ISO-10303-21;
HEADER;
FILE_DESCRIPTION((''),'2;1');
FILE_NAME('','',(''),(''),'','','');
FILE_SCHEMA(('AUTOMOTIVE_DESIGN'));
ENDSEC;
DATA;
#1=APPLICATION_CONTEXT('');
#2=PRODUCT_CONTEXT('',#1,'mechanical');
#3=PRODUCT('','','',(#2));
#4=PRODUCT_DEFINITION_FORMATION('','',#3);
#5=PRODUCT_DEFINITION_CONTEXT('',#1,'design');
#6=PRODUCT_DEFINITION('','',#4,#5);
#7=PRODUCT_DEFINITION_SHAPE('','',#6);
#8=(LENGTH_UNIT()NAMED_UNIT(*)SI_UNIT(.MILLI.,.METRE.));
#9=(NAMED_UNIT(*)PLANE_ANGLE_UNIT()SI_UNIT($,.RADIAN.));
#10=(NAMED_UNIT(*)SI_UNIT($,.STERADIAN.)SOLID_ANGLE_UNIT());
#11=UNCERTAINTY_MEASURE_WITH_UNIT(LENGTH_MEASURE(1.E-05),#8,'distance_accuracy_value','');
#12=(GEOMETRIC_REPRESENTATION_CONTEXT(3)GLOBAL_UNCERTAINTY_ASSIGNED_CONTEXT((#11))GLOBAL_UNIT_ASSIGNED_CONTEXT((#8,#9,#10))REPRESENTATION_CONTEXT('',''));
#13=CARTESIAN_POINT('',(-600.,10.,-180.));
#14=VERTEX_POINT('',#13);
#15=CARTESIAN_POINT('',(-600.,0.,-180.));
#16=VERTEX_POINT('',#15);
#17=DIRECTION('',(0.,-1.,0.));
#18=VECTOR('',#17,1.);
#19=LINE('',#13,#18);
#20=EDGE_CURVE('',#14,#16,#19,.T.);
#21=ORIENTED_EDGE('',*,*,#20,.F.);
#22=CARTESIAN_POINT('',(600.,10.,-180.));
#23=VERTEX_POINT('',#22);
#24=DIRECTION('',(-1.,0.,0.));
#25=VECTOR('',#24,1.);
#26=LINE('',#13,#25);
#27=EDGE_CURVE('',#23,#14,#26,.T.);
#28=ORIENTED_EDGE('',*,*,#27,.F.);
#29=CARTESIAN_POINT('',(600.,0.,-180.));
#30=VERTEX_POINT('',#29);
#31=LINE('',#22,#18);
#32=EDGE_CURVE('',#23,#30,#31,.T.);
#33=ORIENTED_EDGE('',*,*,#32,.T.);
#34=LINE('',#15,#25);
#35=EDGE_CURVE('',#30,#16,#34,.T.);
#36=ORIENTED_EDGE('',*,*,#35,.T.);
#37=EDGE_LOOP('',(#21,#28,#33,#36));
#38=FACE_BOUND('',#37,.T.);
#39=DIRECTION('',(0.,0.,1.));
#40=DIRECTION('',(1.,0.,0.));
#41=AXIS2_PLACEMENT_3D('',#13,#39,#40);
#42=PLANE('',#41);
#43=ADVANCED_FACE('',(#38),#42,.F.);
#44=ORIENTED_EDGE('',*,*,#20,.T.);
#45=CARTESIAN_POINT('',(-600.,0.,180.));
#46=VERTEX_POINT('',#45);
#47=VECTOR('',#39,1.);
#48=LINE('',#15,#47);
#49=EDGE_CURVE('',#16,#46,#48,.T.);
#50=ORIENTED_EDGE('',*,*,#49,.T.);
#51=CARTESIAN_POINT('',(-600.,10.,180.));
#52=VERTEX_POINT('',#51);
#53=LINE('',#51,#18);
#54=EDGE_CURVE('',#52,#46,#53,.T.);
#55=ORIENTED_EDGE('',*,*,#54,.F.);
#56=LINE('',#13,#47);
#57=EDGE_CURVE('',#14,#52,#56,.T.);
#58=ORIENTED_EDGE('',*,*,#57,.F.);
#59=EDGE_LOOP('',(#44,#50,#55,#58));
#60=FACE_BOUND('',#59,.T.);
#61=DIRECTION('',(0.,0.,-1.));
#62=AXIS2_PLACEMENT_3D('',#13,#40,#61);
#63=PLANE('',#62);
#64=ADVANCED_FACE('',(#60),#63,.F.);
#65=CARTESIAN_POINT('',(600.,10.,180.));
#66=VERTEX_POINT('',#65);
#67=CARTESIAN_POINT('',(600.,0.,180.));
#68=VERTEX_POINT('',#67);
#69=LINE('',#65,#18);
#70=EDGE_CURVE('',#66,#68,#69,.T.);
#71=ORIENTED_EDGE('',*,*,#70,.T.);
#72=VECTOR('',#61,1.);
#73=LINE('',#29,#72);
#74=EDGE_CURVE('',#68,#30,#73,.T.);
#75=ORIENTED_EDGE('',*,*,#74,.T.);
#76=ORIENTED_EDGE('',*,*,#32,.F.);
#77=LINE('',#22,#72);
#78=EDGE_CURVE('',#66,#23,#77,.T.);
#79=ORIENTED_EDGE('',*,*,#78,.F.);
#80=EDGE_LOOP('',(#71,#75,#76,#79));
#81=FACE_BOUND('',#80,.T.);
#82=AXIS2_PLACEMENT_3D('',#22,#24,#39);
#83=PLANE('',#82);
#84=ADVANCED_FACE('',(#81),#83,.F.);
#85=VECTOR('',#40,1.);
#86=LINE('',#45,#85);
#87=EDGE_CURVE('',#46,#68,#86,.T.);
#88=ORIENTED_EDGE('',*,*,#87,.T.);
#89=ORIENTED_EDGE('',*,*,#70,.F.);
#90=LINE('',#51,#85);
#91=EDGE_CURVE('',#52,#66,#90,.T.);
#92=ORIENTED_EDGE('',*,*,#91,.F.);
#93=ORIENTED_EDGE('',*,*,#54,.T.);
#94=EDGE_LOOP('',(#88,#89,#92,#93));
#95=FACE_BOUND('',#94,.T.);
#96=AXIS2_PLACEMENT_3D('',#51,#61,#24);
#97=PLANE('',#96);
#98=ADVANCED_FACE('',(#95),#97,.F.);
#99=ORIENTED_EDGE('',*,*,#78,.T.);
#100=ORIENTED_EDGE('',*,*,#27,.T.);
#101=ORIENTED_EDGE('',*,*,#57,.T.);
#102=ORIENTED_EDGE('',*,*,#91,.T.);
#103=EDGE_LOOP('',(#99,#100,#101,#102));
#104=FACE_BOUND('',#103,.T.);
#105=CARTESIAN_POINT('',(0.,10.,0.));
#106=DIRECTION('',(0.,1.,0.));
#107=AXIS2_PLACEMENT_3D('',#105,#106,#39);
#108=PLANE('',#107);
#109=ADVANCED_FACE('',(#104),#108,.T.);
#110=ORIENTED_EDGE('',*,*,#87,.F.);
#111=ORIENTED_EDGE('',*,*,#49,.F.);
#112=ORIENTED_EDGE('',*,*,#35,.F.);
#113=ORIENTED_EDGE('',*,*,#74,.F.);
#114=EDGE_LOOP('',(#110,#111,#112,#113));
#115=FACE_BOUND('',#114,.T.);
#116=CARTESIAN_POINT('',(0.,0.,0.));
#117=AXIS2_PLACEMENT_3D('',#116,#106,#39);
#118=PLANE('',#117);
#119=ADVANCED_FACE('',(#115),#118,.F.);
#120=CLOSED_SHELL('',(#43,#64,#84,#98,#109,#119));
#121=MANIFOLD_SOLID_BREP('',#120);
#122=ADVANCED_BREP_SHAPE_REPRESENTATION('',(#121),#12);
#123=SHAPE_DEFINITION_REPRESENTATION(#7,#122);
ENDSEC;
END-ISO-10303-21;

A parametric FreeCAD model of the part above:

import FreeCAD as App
import Part
import Sketcher

V = App.Vector
Q = App.Units.Quantity

doc = App.newDocument("Part")
params = doc.addObject("Spreadsheet::Sheet", "Params")
for row, (alias, value) in enumerate([
    ("sketch1_width", "1200 mm"),
    ("sketch1_height", "360 mm"),
    ("pad1_length", "10 mm"),
], start=1):
    params.set(f"A{row}", alias)
    params.set(f"B{row}", "=" + value)
    params.setAlias(f"B{row}", alias)

body = doc.addObject("PartDesign::Body", "Body")

# Sketch on XZ plane
sketch1 = body.newObject("Sketcher::SketchObject", "Sketch")
sketch1.AttachmentSupport = (doc.getObject("XZ_Plane"), [""])
sketch1.MapMode = "FlatFace"
sketch1.addGeometry([
    Part.LineSegment(V(-600, -180, 0), V(-600, 180, 0)),
    Part.LineSegment(V(-600, 180, 0), V(600, 180, 0)),
    Part.LineSegment(V(600, 180, 0), V(600, -180, 0)),
    Part.LineSegment(V(600, -180, 0), V(-600, -180, 0)),
], False)
sketch1.addConstraint([
    Sketcher.Constraint("Coincident", 0, 2, 1, 1),
    Sketcher.Constraint("Coincident", 1, 2, 2, 1),
    Sketcher.Constraint("Coincident", 2, 2, 3, 1),
    Sketcher.Constraint("Coincident", 3, 2, 0, 1),
    Sketcher.Constraint("Vertical", 0),
    Sketcher.Constraint("Horizontal", 1),
    Sketcher.Constraint("Vertical", 2),
    Sketcher.Constraint("Horizontal", 3),
    Sketcher.Constraint("Symmetric", 0, 2, 2, 2, -1, 1),
    Sketcher.Constraint("DistanceX", 1, 1, 1, 2, Q("1200 mm")),
    Sketcher.Constraint("DistanceY", 0, 1, 0, 2, Q("360 mm")),
])
sketch1.setExpression("Constraints[9]", "Params.sketch1_width")
sketch1.setExpression("Constraints[10]", "Params.sketch1_height")
pad1 = body.newObject("PartDesign::Pad", "Pad")
pad1.Profile = sketch1
pad1.setExpression("Length", "Params.pad1_length")
pad1.Reversed = True

doc.recompute()
